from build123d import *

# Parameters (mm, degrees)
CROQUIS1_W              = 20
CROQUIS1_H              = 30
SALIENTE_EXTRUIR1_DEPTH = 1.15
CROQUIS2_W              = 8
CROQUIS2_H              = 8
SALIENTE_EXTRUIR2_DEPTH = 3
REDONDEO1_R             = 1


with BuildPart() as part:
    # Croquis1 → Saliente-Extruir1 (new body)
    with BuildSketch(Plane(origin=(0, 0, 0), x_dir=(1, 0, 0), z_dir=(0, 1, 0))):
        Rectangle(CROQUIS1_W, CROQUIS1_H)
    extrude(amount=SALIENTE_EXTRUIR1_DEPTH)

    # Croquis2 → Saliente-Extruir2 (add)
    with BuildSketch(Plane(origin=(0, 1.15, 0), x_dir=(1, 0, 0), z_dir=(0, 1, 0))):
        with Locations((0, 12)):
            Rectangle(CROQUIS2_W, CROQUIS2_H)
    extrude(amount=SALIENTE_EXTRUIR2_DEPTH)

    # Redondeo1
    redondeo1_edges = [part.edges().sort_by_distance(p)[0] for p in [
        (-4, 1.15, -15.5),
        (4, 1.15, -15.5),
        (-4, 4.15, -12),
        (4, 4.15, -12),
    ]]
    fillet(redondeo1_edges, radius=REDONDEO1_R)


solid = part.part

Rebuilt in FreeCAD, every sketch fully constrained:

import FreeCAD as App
import Part
import Sketcher


def edges_at(feature, points):
    """Names of the edges that pass closest to the given points."""
    edges = feature.Shape.Edges
    near = lambda p: min(range(len(edges)), key=lambda i: edges[i].distToShape(Part.Vertex(*p))[0])
    return sorted({f"Edge{near(p) + 1}" for p in points})

doc = App.newDocument("Part")
body = doc.addObject("PartDesign::Body", "Body")

# Sketch on XZ plane
sketch1 = doc.addObject("Sketcher::SketchObject", "Sketch")
body.addObject(sketch1)
sketch1.AttachmentSupport = (doc.XZ_Plane, [""])
sketch1.MapMode = "FlatFace"
sketch1.addGeometry([
    Part.LineSegment(App.Vector(-10, -15, 0), App.Vector(-10, 15, 0)),
    Part.LineSegment(App.Vector(-10, 15, 0), App.Vector(10, 15, 0)),
    Part.LineSegment(App.Vector(10, 15, 0), App.Vector(10, -15, 0)),
    Part.LineSegment(App.Vector(10, -15, 0), App.Vector(-10, -15, 0)),
], False)
sketch1.addConstraint([
    Sketcher.Constraint("Coincident", 0, 2, 1, 1),
    Sketcher.Constraint("Coincident", 1, 2, 2, 1),
    Sketcher.Constraint("Coincident", 2, 2, 3, 1),
    Sketcher.Constraint("Coincident", 3, 2, 0, 1),
    Sketcher.Constraint("Vertical", 0),
    Sketcher.Constraint("Horizontal", 1),
    Sketcher.Constraint("Vertical", 2),
    Sketcher.Constraint("Horizontal", 3),
    Sketcher.Constraint("Symmetric", 0, 2, 2, 2, -1, 1),
    Sketcher.Constraint("DistanceX", 1, 1, 1, 2, 20.0),
    Sketcher.Constraint("DistanceY", 0, 1, 0, 2, 30.0),
])
pad1 = doc.addObject("PartDesign::Pad", "Pad")
body.addObject(pad1)
pad1.Profile = sketch1
pad1.Length = 1.15
pad1.Reversed = True

# Sketch on XZ plane
sketch2 = doc.addObject("Sketcher::SketchObject", "Sketch001")
body.addObject(sketch2)
sketch2.AttachmentSupport = (doc.XZ_Plane, [""])
sketch2.MapMode = "FlatFace"
sketch2.AttachmentOffset = App.Placement(App.Vector(0, 0, -1.15), App.Rotation())
sketch2.addGeometry([
    Part.LineSegment(App.Vector(-4, -16, 0), App.Vector(-4, -8, 0)),
    Part.LineSegment(App.Vector(-4, -8, 0), App.Vector(4, -8, 0)),
    Part.LineSegment(App.Vector(4, -8, 0), App.Vector(4, -16, 0)),
    Part.LineSegment(App.Vector(4, -16, 0), App.Vector(-4, -16, 0)),
], False)
sketch2.addConstraint([
    Sketcher.Constraint("Coincident", 0, 2, 1, 1),
    Sketcher.Constraint("Coincident", 1, 2, 2, 1),
    Sketcher.Constraint("Coincident", 2, 2, 3, 1),
    Sketcher.Constraint("Coincident", 3, 2, 0, 1),
    Sketcher.Constraint("Vertical", 0),
    Sketcher.Constraint("Horizontal", 1),
    Sketcher.Constraint("Vertical", 2),
    Sketcher.Constraint("Horizontal", 3),
    Sketcher.Constraint("Equal", 3, 0),
    Sketcher.Constraint("DistanceX", 1, 1, 1, 2, 8.0),
    Sketcher.Constraint("DistanceX", 0, 2, -1, 1, 4.0),
    Sketcher.Constraint("DistanceY", 0, 2, -1, 1, 8.0),
])
pad2 = doc.addObject("PartDesign::Pad", "Pad001")
body.addObject(pad2)
pad2.Profile = sketch2
pad2.Length = 3
pad2.Reversed = True
doc.recompute()

fillet = doc.addObject("PartDesign::Fillet", "Fillet")
body.addObject(fillet)
fillet.Base = (pad2, edges_at(pad2, [
    (-4, 1.15, -15.5),
    (4, 1.15, -15.5),
    (-4, 4.15, -12),
    (4, 4.15, -12),
]))
fillet.Radius = 1

doc.recompute()
